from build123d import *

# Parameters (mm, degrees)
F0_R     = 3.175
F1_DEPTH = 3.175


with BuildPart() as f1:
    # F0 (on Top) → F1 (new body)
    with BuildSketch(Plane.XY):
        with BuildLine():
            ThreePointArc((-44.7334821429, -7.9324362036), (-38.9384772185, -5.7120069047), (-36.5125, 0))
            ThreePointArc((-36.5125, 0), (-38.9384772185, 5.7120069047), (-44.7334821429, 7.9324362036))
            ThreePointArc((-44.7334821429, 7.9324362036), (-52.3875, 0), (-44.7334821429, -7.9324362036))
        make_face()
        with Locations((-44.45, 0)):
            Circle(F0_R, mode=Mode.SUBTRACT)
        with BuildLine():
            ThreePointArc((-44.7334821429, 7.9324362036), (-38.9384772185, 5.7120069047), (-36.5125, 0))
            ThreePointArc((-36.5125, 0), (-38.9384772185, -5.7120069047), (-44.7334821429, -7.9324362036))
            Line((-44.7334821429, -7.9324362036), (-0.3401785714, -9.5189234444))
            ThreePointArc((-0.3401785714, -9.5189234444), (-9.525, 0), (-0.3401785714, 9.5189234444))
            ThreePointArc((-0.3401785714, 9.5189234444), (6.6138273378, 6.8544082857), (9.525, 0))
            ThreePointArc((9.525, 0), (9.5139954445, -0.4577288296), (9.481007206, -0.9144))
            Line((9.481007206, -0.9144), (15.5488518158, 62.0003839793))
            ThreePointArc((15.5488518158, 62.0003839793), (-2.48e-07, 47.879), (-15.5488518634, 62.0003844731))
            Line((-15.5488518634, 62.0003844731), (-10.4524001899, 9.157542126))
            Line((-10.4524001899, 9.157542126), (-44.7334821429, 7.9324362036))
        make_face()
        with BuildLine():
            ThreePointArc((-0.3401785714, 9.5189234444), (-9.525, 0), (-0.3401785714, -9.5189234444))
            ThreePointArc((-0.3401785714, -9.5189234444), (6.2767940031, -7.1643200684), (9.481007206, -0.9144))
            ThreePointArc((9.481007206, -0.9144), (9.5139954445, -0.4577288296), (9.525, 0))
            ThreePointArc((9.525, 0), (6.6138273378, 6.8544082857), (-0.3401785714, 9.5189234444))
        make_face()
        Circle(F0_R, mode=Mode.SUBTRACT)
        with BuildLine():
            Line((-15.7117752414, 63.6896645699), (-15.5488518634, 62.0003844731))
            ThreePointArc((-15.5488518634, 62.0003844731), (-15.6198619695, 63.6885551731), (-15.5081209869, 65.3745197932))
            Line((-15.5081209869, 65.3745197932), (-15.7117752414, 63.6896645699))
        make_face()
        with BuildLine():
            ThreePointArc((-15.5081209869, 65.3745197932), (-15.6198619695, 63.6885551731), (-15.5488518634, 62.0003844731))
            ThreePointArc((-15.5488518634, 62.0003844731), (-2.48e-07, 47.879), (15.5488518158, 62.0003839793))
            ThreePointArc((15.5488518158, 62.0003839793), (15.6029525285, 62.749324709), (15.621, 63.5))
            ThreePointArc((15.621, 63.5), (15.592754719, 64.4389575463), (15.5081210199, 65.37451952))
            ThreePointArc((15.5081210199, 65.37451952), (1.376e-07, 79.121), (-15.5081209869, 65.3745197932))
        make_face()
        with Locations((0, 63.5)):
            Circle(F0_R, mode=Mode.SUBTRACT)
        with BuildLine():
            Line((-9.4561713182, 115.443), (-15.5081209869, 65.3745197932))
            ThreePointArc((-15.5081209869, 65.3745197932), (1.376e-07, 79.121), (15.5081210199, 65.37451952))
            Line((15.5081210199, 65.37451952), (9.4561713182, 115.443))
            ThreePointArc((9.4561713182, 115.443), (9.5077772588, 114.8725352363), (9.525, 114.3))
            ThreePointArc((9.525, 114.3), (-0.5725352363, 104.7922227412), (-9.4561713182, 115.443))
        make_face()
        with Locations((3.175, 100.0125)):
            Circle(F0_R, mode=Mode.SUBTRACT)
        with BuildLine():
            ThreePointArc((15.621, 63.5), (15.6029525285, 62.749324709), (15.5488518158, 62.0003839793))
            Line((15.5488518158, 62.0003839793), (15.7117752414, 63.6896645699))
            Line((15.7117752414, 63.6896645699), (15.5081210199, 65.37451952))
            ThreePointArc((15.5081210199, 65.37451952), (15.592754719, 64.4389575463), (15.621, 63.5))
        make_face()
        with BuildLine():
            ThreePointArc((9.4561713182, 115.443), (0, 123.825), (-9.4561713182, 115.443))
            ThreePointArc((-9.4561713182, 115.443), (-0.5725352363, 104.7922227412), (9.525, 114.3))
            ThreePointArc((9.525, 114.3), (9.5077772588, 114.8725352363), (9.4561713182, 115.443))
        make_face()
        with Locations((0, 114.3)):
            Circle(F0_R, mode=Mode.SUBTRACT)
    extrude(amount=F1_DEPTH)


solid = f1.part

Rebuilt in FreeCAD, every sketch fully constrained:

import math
import FreeCAD as App
import Part
import Sketcher
Q = App.Units.Quantity

doc = App.newDocument("Part")
params = doc.addObject("Spreadsheet::Sheet", "Params")
for row, (alias, value) in enumerate([
    ("sketch1_diameter", "0.25 in"),
    ("sketch1_radius", "0.3125 in"),
    ("sketch1_radius2", "0.375 in"),
    ("pad1_length", "0.125 in"),
], start=1):
    params.set(f"A{row}", alias)
    params.set(f"B{row}", "=" + value)
    params.setAlias(f"B{row}", alias)

body = doc.addObject("PartDesign::Body", "Body")

# Sketch on XY plane
sketch1 = body.newObject("Sketcher::SketchObject", "Sketch")
sketch1.AttachmentSupport = (doc.getObject("XY_Plane"), [""])
sketch1.MapMode = "FlatFace"
sketch1.addGeometry([
    Part.ArcOfCircle(Part.Circle(App.Vector(-44.5, 0, 0), App.Vector(0, 0, 1), 7.9), math.radians(92), math.radians(268)),  # 0
    Part.LineSegment(App.Vector(-44.7, -7.9, 0), App.Vector(-0.3, -9.5, 0)),  # 1
    Part.ArcOfCircle(Part.Circle(App.Vector(0, 0, 0), App.Vector(0, 0, 1), 9.5), math.radians(-92), math.radians(-6)),  # 2
    Part.LineSegment(App.Vector(9.5, -0.9, 0), App.Vector(15.5, 62, 0)),  # 3
    Part.LineSegment(App.Vector(15.5, 62, 0), App.Vector(15.7, 63.7, 0)),  # 4
    Part.LineSegment(App.Vector(15.7, 63.7, 0), App.Vector(15.5, 65.4, 0)),  # 5
    Part.LineSegment(App.Vector(15.5, 65.4, 0), App.Vector(9.5, 115.4, 0)),  # 6
    Part.ArcOfCircle(Part.Circle(App.Vector(0, 114.3, 0), App.Vector(0, 0, 1), 9.5), math.radians(7), math.radians(173)),  # 7
    Part.LineSegment(App.Vector(-9.5, 115.4, 0), App.Vector(-15.7, 63.7, 0)),  # 8
    Part.LineSegment(App.Vector(-15.7, 63.7, 0), App.Vector(-15.5, 62, 0)),  # 9
    Part.LineSegment(App.Vector(-15.5, 62, 0), App.Vector(-10.5, 9.2, 0)),  # 10
    Part.LineSegment(App.Vector(-10.5, 9.2, 0), App.Vector(-44.7, 7.9, 0)),  # 11
    Part.Circle(App.Vector(-44.5, 0, 0), App.Vector(0, 0, 1), 3.2),  # 12
    Part.Circle(App.Vector(0, 0, 0), App.Vector(0, 0, 1), 3.2),  # 13
    Part.Circle(App.Vector(0, 63.5, 0), App.Vector(0, 0, 1), 3.2),  # 14
    Part.Circle(App.Vector(3.2, 100, 0), App.Vector(0, 0, 1), 3.2),  # 15
    Part.Circle(App.Vector(0, 114.3, 0), App.Vector(0, 0, 1), 3.2),  # 16
], False)
sketch1.addConstraint([
    Sketcher.Constraint("Tangent", 0, 2, 1, 1),
    Sketcher.Constraint("Tangent", 1, 2, 2, 1),
    Sketcher.Constraint("Tangent", 2, 2, 3, 1),
    Sketcher.Constraint("Coincident", 3, 2, 4, 1),
    Sketcher.Constraint("Coincident", 4, 2, 5, 1),
    Sketcher.Constraint("Coincident", 5, 2, 6, 1),
    Sketcher.Constraint("Tangent", 6, 2, 7, 1),
    Sketcher.Constraint("Tangent", 7, 2, 8, 1),
    Sketcher.Constraint("Coincident", 8, 2, 9, 1),
    Sketcher.Constraint("Coincident", 9, 2, 10, 1),
    Sketcher.Constraint("Coincident", 10, 2, 11, 1),
    Sketcher.Constraint("Tangent", 11, 2, 0, 1),
    Sketcher.Constraint("Coincident", 2, 3, -1, 1),
    Sketcher.Constraint("Coincident", 13, 3, -1, 1),
    Sketcher.Constraint("Coincident", 12, 3, 0, 3),
    Sketcher.Constraint("Coincident", 16, 3, 7, 3),
    Sketcher.Constraint("Equal", 2, 7),
    Sketcher.Constraint("Equal", 12, 13),
    Sketcher.Constraint("Equal", 13, 14),
    Sketcher.Constraint("Equal", 14, 15),
    Sketcher.Constraint("Equal", 15, 16),
    Sketcher.Constraint("Symmetric", 6, 2, 7, 2, -2),
    Sketcher.Constraint("Symmetric", 4, 2, 8, 2, -2),
    Sketcher.Constraint("Symmetric", 3, 2, 9, 2, -2),
    Sketcher.Constraint("Symmetric", 0, 2, 11, 2, -1),
    Sketcher.Constraint("PointOnObject", 14, 3, -2),
    Sketcher.Constraint("Parallel", 3, 4),
    Sketcher.Constraint("Parallel", 9, 10),
    Sketcher.Constraint("Equal", 4, 5),
    Sketcher.Constraint("Diameter", 12, Q("0.25 in")),
    Sketcher.Constraint("Radius", 0, Q("0.3125 in")),
    Sketcher.Constraint("Radius", 2, Q("0.375 in")),
    Sketcher.Constraint("DistanceY", 14, 3, 7, 3, Q("2 in")),
    Sketcher.Constraint("DistanceY", -1, 1, 7, 3, Q("4.5 in")),
    Sketcher.Constraint("DistanceX", 0, 3, -1, 1, Q("1.75 in")),
    Sketcher.Constraint("DistanceX", -1, 1, 15, 3, Q("0.125 in")),
    Sketcher.Constraint("DistanceY", -1, 1, 15, 3, Q("3.9375 in")),
    Sketcher.Constraint("DistanceY", 2, 2, -1, 1, Q("0.036 in")),
    Sketcher.Constraint("DistanceY", -1, 1, 6, 2, Q("4.545 in")),
    Sketcher.Constraint("DistanceY", -1, 1, 5, 2, Q("2.5738 in")),
])
sketch1.setExpression("Constraints[29]", "Params.sketch1_diameter")
sketch1.setExpression("Constraints[30]", "Params.sketch1_radius")
sketch1.setExpression("Constraints[31]", "Params.sketch1_radius2")
pad1 = body.newObject("PartDesign::Pad", "Pad")
pad1.Profile = sketch1
pad1.setExpression("Length", "Params.pad1_length")

doc.recompute()
